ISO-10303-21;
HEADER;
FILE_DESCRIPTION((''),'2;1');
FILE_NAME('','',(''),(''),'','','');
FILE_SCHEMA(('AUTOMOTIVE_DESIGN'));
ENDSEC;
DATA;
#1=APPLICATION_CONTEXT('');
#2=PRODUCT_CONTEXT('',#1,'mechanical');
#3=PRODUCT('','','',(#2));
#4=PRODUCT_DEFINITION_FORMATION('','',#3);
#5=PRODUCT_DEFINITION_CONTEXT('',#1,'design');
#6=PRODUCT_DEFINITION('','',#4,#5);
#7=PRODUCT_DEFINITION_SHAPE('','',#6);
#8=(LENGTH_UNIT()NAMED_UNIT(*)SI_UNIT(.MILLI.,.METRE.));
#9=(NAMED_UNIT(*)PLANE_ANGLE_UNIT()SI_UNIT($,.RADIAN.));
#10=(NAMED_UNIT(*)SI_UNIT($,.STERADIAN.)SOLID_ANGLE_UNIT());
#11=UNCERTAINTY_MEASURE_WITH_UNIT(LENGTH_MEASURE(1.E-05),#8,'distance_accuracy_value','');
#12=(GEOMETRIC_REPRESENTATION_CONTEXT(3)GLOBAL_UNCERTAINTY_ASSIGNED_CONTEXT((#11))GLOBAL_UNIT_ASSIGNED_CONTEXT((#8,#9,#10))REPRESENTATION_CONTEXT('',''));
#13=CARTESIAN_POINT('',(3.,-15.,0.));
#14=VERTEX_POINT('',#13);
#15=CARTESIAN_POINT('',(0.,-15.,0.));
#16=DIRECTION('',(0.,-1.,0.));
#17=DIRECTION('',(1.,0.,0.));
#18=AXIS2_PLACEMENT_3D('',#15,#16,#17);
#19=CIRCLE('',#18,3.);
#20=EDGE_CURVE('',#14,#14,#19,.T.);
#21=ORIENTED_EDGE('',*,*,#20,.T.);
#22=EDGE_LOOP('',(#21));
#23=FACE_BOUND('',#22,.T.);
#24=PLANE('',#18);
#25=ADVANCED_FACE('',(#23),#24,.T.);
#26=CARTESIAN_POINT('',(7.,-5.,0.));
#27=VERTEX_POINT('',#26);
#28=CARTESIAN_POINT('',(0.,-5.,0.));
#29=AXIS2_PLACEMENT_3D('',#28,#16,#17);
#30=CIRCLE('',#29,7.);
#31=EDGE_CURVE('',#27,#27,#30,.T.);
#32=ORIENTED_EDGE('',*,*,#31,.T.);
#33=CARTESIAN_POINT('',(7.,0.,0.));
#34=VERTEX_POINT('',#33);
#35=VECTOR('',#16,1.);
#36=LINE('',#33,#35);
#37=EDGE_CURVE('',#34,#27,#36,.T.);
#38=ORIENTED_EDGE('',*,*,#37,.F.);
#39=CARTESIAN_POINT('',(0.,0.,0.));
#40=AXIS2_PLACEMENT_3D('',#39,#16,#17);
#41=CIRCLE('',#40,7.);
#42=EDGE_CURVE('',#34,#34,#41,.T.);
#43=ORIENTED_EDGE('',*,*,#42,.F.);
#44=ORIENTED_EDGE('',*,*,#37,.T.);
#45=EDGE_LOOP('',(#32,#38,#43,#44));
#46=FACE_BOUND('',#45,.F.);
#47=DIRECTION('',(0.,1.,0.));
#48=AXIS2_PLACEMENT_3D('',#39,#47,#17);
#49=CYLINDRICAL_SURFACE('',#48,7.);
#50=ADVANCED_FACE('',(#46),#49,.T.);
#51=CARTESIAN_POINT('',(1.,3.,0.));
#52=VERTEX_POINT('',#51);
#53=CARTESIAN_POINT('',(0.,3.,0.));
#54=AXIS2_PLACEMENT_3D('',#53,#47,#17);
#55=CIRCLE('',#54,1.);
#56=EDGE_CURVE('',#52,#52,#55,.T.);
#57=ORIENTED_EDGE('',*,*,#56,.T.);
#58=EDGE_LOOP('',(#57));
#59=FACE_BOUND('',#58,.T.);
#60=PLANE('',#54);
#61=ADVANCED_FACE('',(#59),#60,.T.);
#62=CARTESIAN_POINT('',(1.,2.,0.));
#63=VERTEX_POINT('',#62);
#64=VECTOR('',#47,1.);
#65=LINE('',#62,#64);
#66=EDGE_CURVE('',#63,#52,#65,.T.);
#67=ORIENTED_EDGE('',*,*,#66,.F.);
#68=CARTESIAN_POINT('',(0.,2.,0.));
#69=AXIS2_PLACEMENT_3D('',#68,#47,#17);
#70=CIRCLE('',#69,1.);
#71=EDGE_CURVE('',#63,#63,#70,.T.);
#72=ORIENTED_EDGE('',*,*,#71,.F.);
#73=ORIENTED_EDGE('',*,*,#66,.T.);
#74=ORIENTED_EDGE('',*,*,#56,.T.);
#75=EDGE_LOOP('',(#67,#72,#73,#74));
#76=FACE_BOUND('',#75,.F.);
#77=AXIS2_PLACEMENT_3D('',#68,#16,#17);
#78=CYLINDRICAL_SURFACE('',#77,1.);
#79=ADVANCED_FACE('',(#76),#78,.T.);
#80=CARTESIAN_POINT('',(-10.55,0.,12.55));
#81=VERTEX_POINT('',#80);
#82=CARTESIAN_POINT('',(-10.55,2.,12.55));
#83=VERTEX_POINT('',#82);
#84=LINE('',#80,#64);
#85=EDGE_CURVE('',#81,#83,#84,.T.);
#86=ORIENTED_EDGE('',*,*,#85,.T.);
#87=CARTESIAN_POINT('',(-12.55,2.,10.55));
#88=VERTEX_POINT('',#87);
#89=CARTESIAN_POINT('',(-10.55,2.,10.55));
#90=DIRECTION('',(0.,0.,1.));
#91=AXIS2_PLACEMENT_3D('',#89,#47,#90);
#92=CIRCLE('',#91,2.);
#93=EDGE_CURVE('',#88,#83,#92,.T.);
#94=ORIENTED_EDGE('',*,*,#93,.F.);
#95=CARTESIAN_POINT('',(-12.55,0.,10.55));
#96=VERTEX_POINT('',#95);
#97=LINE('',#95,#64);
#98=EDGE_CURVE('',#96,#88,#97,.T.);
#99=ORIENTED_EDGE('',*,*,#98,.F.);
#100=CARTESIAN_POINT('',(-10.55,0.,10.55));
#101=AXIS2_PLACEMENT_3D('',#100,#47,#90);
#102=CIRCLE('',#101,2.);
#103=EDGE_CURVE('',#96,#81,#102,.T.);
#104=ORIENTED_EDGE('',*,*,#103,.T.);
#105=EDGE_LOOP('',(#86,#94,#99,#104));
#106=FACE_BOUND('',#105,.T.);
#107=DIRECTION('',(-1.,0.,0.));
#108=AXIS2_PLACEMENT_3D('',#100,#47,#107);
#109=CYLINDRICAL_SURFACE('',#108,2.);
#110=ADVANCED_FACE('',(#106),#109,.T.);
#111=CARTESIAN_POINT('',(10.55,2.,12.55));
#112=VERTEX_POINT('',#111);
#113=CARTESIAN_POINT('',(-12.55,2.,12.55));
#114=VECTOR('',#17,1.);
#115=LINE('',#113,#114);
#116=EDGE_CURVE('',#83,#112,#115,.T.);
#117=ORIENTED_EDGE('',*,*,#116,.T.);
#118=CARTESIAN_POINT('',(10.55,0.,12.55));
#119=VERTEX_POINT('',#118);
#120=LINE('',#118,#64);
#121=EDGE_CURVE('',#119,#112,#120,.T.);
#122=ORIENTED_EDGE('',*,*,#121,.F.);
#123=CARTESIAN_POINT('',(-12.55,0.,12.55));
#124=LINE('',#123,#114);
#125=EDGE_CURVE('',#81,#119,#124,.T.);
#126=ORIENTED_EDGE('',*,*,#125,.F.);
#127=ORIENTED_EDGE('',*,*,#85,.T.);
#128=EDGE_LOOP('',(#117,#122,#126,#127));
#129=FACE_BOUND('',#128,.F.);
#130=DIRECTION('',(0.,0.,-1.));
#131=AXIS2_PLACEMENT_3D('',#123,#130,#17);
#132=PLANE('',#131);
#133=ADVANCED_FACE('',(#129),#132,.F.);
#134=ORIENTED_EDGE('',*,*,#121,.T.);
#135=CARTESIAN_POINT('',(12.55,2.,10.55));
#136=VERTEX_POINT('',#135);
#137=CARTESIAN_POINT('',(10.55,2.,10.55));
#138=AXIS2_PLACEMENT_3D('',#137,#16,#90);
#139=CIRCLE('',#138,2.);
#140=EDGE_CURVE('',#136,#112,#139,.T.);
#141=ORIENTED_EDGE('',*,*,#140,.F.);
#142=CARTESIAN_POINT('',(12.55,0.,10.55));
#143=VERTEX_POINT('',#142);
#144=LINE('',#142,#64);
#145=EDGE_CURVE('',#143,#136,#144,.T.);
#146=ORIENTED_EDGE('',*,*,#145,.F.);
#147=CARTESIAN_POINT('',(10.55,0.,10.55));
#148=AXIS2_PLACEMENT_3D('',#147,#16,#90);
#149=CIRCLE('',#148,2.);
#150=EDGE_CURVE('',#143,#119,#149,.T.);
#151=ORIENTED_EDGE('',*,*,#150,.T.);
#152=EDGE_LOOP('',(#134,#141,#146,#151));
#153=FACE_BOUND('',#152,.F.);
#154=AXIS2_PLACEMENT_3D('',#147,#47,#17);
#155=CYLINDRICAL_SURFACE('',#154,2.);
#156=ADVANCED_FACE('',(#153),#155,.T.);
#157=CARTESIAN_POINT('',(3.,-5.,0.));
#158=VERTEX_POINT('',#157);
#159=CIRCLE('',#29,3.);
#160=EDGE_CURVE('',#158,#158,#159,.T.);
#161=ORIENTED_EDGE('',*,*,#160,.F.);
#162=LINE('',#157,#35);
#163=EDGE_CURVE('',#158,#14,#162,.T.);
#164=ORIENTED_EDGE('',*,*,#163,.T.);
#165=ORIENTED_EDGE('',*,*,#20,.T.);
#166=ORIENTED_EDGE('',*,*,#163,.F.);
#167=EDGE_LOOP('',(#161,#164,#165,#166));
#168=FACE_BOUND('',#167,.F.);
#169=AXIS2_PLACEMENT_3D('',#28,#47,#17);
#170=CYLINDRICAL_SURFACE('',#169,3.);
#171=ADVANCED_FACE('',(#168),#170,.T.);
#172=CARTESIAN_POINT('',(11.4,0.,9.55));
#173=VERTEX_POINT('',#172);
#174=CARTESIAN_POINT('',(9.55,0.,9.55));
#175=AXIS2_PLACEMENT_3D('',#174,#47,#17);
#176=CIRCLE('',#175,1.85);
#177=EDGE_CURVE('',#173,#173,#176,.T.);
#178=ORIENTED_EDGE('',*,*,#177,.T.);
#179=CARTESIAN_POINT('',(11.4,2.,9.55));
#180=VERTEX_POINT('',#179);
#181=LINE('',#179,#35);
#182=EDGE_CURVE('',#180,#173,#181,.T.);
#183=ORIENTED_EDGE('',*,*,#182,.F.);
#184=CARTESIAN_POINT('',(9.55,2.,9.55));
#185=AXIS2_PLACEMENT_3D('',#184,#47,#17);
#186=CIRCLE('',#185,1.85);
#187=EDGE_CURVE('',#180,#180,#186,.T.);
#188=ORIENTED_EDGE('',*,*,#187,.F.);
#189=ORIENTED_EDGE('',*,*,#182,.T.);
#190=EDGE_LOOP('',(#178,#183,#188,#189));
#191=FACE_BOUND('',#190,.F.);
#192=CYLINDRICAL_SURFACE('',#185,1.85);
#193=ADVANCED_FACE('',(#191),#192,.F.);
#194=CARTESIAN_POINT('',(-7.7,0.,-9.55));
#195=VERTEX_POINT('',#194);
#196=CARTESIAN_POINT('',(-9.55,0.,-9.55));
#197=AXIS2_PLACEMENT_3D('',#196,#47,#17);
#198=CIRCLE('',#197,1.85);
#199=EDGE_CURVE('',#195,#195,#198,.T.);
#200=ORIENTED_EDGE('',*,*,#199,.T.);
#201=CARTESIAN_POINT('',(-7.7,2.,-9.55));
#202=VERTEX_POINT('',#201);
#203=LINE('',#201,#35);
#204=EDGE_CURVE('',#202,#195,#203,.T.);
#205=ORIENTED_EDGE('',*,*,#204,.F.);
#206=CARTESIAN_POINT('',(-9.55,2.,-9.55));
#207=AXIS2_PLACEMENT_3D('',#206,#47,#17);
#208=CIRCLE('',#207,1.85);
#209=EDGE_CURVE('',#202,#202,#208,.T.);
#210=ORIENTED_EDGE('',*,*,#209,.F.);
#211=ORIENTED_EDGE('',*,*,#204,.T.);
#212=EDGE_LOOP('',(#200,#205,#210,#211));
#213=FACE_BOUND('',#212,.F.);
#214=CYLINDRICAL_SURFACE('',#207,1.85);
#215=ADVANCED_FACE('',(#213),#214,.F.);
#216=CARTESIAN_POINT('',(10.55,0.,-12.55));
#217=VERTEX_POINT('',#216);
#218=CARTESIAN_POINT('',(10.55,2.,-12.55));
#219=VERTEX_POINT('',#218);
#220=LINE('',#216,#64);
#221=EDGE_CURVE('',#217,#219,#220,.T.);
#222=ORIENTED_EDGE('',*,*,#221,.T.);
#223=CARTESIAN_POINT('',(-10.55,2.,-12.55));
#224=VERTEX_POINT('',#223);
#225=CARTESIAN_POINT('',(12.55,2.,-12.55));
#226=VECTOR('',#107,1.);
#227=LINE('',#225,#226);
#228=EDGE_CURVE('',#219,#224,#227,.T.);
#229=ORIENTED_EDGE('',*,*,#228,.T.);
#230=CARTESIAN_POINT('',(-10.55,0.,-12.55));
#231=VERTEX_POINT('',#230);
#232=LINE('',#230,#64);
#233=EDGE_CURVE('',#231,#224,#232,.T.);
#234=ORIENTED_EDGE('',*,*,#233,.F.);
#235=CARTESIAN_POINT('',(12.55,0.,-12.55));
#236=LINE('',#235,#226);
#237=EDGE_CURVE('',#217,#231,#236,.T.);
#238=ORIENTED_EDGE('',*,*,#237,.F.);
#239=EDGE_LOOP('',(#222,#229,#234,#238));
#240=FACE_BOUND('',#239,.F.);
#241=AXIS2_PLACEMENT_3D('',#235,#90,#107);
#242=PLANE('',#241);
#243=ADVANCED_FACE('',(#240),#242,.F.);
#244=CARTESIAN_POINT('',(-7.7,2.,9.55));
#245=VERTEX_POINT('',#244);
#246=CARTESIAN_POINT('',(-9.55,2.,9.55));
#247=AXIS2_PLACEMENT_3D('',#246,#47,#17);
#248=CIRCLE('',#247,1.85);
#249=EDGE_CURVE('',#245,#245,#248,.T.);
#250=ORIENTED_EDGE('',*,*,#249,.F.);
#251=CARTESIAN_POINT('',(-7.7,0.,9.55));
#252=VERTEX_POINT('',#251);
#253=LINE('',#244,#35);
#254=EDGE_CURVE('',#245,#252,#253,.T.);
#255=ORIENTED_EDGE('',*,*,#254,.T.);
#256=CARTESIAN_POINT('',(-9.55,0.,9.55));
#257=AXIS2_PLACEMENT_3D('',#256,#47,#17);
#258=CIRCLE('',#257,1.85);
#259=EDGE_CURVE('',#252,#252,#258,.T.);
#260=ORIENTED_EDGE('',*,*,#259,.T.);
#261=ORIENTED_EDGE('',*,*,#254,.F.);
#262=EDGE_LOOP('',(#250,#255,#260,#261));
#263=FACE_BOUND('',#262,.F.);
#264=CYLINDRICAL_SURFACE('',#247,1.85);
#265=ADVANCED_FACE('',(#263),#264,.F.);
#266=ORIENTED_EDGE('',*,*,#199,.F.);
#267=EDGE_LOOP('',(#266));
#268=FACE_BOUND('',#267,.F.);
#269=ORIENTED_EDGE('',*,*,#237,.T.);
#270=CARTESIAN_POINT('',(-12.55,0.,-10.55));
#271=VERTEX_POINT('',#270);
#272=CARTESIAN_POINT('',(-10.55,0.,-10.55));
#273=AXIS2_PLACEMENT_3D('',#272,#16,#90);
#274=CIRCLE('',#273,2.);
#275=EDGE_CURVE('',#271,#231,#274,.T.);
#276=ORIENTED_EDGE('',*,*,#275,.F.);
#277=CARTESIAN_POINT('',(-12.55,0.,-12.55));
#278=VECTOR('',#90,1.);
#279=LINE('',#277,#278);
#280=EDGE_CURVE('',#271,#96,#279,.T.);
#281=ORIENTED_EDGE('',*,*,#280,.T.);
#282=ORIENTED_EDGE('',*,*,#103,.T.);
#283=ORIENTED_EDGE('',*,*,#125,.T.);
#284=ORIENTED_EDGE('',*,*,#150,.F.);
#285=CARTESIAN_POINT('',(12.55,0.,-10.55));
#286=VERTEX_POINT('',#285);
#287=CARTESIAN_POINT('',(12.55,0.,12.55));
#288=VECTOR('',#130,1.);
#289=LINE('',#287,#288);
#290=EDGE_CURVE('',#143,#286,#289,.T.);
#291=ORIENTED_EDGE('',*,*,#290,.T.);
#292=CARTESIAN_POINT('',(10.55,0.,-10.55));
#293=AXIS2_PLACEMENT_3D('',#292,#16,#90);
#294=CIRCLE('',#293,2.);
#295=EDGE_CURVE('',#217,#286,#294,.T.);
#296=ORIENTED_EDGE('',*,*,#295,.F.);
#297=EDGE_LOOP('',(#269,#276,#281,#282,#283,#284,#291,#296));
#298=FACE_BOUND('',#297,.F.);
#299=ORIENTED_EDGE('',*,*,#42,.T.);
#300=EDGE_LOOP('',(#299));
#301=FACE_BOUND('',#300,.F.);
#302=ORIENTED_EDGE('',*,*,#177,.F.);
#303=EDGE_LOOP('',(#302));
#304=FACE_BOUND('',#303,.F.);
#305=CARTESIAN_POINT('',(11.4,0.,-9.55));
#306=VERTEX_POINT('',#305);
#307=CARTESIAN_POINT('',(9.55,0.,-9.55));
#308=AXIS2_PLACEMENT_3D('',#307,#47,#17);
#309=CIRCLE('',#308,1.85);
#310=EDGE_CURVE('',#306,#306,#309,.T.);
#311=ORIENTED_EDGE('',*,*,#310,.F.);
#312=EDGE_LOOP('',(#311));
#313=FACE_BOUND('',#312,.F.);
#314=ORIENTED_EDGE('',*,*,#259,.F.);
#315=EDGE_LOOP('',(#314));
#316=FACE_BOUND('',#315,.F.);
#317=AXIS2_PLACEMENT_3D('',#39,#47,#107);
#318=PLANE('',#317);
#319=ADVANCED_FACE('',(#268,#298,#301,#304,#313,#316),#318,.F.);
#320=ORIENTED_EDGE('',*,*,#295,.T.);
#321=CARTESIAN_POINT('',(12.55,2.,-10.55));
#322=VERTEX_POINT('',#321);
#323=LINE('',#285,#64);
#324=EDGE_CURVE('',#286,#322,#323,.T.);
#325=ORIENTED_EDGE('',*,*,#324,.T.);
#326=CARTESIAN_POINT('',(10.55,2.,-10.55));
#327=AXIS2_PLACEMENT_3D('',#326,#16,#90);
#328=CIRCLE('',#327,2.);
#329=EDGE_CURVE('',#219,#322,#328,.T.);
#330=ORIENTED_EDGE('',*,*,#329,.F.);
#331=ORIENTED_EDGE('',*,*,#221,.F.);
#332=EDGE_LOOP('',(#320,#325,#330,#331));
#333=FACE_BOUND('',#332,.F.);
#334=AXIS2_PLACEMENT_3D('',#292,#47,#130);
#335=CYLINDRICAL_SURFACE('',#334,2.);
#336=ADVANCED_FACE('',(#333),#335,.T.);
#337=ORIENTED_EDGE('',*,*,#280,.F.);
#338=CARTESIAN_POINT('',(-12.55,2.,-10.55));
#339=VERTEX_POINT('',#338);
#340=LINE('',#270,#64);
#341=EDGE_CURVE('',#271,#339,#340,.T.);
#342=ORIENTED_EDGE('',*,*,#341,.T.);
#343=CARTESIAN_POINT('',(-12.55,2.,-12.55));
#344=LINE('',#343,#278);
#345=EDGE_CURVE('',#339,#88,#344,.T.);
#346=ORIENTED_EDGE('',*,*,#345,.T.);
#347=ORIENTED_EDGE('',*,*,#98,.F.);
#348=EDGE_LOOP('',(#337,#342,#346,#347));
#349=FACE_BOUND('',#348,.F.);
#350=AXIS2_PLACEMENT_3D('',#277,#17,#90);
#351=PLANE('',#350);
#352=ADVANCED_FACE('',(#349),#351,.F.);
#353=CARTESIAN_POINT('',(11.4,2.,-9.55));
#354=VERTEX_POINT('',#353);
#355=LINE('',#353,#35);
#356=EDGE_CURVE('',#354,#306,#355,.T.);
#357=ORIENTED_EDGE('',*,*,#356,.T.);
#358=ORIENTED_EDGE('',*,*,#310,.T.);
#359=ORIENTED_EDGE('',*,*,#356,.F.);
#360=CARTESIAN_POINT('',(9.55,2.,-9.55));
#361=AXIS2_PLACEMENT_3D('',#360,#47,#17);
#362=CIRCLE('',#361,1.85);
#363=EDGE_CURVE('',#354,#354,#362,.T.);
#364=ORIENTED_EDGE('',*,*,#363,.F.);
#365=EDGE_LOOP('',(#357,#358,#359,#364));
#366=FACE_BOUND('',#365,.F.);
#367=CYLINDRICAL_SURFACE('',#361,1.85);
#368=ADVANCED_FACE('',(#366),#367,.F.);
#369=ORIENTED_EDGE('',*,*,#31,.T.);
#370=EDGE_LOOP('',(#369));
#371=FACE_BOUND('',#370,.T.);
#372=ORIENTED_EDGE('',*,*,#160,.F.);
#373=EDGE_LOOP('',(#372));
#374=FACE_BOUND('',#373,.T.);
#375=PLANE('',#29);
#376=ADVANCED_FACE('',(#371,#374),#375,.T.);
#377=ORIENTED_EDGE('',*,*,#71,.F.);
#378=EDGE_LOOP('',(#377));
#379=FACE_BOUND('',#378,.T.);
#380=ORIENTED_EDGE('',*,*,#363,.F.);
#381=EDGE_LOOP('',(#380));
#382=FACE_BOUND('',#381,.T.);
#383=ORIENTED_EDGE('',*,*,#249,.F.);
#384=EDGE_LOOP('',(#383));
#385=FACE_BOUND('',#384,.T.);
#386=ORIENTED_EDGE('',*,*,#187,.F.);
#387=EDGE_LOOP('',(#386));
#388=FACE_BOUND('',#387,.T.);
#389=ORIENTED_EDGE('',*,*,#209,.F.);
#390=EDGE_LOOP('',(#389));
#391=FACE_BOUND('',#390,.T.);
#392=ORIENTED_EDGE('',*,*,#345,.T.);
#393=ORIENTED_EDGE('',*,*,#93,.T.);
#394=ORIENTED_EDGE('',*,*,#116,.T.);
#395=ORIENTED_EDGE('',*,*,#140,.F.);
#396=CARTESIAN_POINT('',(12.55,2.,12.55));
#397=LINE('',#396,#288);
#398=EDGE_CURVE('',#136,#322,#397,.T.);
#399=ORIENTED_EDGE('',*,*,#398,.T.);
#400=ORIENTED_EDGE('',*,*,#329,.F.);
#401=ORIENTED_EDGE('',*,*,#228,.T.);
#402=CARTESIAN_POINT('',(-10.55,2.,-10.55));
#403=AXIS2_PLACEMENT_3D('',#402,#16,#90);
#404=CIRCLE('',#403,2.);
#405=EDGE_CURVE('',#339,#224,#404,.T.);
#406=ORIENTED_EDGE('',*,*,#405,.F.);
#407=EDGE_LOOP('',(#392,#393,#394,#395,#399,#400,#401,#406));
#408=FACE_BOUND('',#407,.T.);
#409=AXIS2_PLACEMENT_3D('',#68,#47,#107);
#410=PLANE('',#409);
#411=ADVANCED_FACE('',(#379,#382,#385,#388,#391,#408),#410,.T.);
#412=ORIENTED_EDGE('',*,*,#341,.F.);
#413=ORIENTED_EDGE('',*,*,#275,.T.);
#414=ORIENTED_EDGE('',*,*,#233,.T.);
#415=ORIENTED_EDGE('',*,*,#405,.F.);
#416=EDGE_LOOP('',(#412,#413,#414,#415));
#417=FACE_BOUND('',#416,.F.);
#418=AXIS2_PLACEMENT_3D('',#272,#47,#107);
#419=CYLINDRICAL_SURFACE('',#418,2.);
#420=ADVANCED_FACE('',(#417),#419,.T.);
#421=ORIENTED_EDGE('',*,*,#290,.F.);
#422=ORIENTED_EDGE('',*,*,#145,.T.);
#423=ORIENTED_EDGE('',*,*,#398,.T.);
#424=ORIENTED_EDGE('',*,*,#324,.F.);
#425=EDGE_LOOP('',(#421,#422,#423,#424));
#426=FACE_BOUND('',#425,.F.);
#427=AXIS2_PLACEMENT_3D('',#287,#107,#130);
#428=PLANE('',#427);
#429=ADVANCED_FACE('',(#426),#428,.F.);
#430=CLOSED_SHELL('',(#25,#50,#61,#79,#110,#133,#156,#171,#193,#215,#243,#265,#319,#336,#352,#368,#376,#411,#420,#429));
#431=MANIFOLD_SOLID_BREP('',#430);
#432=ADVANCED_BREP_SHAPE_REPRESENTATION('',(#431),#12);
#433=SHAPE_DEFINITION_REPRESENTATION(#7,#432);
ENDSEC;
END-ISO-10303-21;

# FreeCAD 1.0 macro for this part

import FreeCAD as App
import Part
import Sketcher


def edges_at(feature, points):
    """Names of the edges that pass closest to the given points."""
    edges = feature.Shape.Edges
    near = lambda p: min(range(len(edges)), key=lambda i: edges[i].distToShape(Part.Vertex(*p))[0])
    return sorted({f"Edge{near(p) + 1}" for p in points})

doc = App.newDocument("Part")
body = doc.addObject("PartDesign::Body", "Body")

# Sketch on XZ plane
sketch1 = doc.addObject("Sketcher::SketchObject", "Sketch")
body.addObject(sketch1)
sketch1.AttachmentSupport = (doc.XZ_Plane, [""])
sketch1.MapMode = "FlatFace"
sketch1.addGeometry([
    Part.LineSegment(App.Vector(-12.55, -12.55, 0), App.Vector(-12.55, 12.55, 0)),
    Part.LineSegment(App.Vector(-12.55, 12.55, 0), App.Vector(12.55, 12.55, 0)),
    Part.LineSegment(App.Vector(12.55, 12.55, 0), App.Vector(12.55, -12.55, 0)),
    Part.LineSegment(App.Vector(12.55, -12.55, 0), App.Vector(-12.55, -12.55, 0)),
], False)
sketch1.addConstraint([
    Sketcher.Constraint("Coincident", 0, 2, 1, 1),
    Sketcher.Constraint("Coincident", 1, 2, 2, 1),
    Sketcher.Constraint("Coincident", 2, 2, 3, 1),
    Sketcher.Constraint("Coincident", 3, 2, 0, 1),
    Sketcher.Constraint("Vertical", 0),
    Sketcher.Constraint("Horizontal", 1),
    Sketcher.Constraint("Vertical", 2),
    Sketcher.Constraint("Horizontal", 3),
    Sketcher.Constraint("Symmetric", 0, 2, 2, 2, -1, 1),
    Sketcher.Constraint("Equal", 3, 0),
    Sketcher.Constraint("DistanceX", 1, 1, 1, 2, 25.1),
])
pad1 = doc.addObject("PartDesign::Pad", "Pad")
body.addObject(pad1)
pad1.Profile = sketch1
pad1.Length = 2
pad1.Reversed = True
doc.recompute()

fillet = doc.addObject("PartDesign::Fillet", "Fillet")
body.addObject(fillet)
fillet.Base = (pad1, edges_at(pad1, [
    (12.55, 1, 12.55),
    (-12.55, 1, 12.55),
    (12.55, 1, -12.55),
    (-12.55, 1, -12.55),
]))
fillet.Radius = 2

# Sketch on XZ plane
sketch2 = doc.addObject("Sketcher::SketchObject", "Sketch001")
body.addObject(sketch2)
sketch2.AttachmentSupport = (doc.XZ_Plane, [""])
sketch2.MapMode = "FlatFace"
sketch2.AttachmentOffset = App.Placement(App.Vector(0, 0, -2), App.Rotation())
sketch2.addGeometry([
    Part.Circle(App.Vector(-9.55, 9.55, 0), App.Vector(0, 0, 1), 1.85),
    Part.Circle(App.Vector(-9.55, -9.55, 0), App.Vector(0, 0, 1), 1.85),
    Part.Circle(App.Vector(9.55, 9.55, 0), App.Vector(0, 0, 1), 1.85),
    Part.Circle(App.Vector(9.55, -9.55, 0), App.Vector(0, 0, 1), 1.85),
], False)
sketch2.addConstraint([
    Sketcher.Constraint("Equal", 0, 1),
    Sketcher.Constraint("Equal", 1, 2),
    Sketcher.Constraint("Equal", 2, 3),
    Sketcher.Constraint("Symmetric", 1, 3, 2, 3, -1, 1),
    Sketcher.Constraint("Symmetric", 0, 3, 3, 3, -1, 1),
    Sketcher.Constraint("Symmetric", 0, 3, 2, 3, -2),
    Sketcher.Constraint("Diameter", 0, 3.7),
    Sketcher.Constraint("DistanceY", 1, 3, 0, 3, 19.1),
    Sketcher.Constraint("DistanceX", 0, 3, 2, 3, 19.1),
])
pocket1 = doc.addObject("PartDesign::Pocket", "Pocket")
body.addObject(pocket1)
pocket1.Profile = sketch2
pocket1.Type = "ThroughAll"
pocket1.Reversed = True

# Sketch on XZ plane
sketch3 = doc.addObject("Sketcher::SketchObject", "Sketch002")
body.addObject(sketch3)
sketch3.AttachmentSupport = (doc.XZ_Plane, [""])
sketch3.MapMode = "FlatFace"
sketch3.AttachmentOffset = App.Placement(App.Vector(0, 0, -2), App.Rotation())
sketch3.addGeometry(Part.Circle(App.Vector(0, 0, 0), App.Vector(0, 0, 1), 1), False)
sketch3.addConstraint([
    Sketcher.Constraint("Coincident", 0, 3, -1, 1),
    Sketcher.Constraint("Diameter", 0, 2.0),
])
pad2 = doc.addObject("PartDesign::Pad", "Pad001")
body.addObject(pad2)
pad2.Profile = sketch3
pad2.Length = 1
pad2.Reversed = True

# Sketch on XZ plane
sketch4 = doc.addObject("Sketcher::SketchObject", "Sketch003")
body.addObject(sketch4)
sketch4.AttachmentSupport = (doc.XZ_Plane, [""])
sketch4.MapMode = "FlatFace"
sketch4.addGeometry(Part.Circle(App.Vector(0, 0, 0), App.Vector(0, 0, 1), 7), False)
sketch4.addConstraint([
    Sketcher.Constraint("Coincident", 0, 3, -1, 1),
    Sketcher.Constraint("Diameter", 0, 14.0),
])
pad3 = doc.addObject("PartDesign::Pad", "Pad002")
body.addObject(pad3)
pad3.Profile = sketch4
pad3.Length = 5

# Sketch on XZ plane
sketch5 = doc.addObject("Sketcher::SketchObject", "Sketch004")
body.addObject(sketch5)
sketch5.AttachmentSupport = (doc.XZ_Plane, [""])
sketch5.MapMode = "FlatFace"
sketch5.AttachmentOffset = App.Placement(App.Vector(0, 0, 5), App.Rotation())
sketch5.addGeometry(Part.Circle(App.Vector(0, 0, 0), App.Vector(0, 0, 1), 3), False)
sketch5.addConstraint([
    Sketcher.Constraint("Coincident", 0, 3, -1, 1),
    Sketcher.Constraint("Diameter", 0, 6.0),
])
pad4 = doc.addObject("PartDesign::Pad", "Pad003")
body.addObject(pad4)
pad4.Profile = sketch5
pad4.Length = 10

doc.recompute()
